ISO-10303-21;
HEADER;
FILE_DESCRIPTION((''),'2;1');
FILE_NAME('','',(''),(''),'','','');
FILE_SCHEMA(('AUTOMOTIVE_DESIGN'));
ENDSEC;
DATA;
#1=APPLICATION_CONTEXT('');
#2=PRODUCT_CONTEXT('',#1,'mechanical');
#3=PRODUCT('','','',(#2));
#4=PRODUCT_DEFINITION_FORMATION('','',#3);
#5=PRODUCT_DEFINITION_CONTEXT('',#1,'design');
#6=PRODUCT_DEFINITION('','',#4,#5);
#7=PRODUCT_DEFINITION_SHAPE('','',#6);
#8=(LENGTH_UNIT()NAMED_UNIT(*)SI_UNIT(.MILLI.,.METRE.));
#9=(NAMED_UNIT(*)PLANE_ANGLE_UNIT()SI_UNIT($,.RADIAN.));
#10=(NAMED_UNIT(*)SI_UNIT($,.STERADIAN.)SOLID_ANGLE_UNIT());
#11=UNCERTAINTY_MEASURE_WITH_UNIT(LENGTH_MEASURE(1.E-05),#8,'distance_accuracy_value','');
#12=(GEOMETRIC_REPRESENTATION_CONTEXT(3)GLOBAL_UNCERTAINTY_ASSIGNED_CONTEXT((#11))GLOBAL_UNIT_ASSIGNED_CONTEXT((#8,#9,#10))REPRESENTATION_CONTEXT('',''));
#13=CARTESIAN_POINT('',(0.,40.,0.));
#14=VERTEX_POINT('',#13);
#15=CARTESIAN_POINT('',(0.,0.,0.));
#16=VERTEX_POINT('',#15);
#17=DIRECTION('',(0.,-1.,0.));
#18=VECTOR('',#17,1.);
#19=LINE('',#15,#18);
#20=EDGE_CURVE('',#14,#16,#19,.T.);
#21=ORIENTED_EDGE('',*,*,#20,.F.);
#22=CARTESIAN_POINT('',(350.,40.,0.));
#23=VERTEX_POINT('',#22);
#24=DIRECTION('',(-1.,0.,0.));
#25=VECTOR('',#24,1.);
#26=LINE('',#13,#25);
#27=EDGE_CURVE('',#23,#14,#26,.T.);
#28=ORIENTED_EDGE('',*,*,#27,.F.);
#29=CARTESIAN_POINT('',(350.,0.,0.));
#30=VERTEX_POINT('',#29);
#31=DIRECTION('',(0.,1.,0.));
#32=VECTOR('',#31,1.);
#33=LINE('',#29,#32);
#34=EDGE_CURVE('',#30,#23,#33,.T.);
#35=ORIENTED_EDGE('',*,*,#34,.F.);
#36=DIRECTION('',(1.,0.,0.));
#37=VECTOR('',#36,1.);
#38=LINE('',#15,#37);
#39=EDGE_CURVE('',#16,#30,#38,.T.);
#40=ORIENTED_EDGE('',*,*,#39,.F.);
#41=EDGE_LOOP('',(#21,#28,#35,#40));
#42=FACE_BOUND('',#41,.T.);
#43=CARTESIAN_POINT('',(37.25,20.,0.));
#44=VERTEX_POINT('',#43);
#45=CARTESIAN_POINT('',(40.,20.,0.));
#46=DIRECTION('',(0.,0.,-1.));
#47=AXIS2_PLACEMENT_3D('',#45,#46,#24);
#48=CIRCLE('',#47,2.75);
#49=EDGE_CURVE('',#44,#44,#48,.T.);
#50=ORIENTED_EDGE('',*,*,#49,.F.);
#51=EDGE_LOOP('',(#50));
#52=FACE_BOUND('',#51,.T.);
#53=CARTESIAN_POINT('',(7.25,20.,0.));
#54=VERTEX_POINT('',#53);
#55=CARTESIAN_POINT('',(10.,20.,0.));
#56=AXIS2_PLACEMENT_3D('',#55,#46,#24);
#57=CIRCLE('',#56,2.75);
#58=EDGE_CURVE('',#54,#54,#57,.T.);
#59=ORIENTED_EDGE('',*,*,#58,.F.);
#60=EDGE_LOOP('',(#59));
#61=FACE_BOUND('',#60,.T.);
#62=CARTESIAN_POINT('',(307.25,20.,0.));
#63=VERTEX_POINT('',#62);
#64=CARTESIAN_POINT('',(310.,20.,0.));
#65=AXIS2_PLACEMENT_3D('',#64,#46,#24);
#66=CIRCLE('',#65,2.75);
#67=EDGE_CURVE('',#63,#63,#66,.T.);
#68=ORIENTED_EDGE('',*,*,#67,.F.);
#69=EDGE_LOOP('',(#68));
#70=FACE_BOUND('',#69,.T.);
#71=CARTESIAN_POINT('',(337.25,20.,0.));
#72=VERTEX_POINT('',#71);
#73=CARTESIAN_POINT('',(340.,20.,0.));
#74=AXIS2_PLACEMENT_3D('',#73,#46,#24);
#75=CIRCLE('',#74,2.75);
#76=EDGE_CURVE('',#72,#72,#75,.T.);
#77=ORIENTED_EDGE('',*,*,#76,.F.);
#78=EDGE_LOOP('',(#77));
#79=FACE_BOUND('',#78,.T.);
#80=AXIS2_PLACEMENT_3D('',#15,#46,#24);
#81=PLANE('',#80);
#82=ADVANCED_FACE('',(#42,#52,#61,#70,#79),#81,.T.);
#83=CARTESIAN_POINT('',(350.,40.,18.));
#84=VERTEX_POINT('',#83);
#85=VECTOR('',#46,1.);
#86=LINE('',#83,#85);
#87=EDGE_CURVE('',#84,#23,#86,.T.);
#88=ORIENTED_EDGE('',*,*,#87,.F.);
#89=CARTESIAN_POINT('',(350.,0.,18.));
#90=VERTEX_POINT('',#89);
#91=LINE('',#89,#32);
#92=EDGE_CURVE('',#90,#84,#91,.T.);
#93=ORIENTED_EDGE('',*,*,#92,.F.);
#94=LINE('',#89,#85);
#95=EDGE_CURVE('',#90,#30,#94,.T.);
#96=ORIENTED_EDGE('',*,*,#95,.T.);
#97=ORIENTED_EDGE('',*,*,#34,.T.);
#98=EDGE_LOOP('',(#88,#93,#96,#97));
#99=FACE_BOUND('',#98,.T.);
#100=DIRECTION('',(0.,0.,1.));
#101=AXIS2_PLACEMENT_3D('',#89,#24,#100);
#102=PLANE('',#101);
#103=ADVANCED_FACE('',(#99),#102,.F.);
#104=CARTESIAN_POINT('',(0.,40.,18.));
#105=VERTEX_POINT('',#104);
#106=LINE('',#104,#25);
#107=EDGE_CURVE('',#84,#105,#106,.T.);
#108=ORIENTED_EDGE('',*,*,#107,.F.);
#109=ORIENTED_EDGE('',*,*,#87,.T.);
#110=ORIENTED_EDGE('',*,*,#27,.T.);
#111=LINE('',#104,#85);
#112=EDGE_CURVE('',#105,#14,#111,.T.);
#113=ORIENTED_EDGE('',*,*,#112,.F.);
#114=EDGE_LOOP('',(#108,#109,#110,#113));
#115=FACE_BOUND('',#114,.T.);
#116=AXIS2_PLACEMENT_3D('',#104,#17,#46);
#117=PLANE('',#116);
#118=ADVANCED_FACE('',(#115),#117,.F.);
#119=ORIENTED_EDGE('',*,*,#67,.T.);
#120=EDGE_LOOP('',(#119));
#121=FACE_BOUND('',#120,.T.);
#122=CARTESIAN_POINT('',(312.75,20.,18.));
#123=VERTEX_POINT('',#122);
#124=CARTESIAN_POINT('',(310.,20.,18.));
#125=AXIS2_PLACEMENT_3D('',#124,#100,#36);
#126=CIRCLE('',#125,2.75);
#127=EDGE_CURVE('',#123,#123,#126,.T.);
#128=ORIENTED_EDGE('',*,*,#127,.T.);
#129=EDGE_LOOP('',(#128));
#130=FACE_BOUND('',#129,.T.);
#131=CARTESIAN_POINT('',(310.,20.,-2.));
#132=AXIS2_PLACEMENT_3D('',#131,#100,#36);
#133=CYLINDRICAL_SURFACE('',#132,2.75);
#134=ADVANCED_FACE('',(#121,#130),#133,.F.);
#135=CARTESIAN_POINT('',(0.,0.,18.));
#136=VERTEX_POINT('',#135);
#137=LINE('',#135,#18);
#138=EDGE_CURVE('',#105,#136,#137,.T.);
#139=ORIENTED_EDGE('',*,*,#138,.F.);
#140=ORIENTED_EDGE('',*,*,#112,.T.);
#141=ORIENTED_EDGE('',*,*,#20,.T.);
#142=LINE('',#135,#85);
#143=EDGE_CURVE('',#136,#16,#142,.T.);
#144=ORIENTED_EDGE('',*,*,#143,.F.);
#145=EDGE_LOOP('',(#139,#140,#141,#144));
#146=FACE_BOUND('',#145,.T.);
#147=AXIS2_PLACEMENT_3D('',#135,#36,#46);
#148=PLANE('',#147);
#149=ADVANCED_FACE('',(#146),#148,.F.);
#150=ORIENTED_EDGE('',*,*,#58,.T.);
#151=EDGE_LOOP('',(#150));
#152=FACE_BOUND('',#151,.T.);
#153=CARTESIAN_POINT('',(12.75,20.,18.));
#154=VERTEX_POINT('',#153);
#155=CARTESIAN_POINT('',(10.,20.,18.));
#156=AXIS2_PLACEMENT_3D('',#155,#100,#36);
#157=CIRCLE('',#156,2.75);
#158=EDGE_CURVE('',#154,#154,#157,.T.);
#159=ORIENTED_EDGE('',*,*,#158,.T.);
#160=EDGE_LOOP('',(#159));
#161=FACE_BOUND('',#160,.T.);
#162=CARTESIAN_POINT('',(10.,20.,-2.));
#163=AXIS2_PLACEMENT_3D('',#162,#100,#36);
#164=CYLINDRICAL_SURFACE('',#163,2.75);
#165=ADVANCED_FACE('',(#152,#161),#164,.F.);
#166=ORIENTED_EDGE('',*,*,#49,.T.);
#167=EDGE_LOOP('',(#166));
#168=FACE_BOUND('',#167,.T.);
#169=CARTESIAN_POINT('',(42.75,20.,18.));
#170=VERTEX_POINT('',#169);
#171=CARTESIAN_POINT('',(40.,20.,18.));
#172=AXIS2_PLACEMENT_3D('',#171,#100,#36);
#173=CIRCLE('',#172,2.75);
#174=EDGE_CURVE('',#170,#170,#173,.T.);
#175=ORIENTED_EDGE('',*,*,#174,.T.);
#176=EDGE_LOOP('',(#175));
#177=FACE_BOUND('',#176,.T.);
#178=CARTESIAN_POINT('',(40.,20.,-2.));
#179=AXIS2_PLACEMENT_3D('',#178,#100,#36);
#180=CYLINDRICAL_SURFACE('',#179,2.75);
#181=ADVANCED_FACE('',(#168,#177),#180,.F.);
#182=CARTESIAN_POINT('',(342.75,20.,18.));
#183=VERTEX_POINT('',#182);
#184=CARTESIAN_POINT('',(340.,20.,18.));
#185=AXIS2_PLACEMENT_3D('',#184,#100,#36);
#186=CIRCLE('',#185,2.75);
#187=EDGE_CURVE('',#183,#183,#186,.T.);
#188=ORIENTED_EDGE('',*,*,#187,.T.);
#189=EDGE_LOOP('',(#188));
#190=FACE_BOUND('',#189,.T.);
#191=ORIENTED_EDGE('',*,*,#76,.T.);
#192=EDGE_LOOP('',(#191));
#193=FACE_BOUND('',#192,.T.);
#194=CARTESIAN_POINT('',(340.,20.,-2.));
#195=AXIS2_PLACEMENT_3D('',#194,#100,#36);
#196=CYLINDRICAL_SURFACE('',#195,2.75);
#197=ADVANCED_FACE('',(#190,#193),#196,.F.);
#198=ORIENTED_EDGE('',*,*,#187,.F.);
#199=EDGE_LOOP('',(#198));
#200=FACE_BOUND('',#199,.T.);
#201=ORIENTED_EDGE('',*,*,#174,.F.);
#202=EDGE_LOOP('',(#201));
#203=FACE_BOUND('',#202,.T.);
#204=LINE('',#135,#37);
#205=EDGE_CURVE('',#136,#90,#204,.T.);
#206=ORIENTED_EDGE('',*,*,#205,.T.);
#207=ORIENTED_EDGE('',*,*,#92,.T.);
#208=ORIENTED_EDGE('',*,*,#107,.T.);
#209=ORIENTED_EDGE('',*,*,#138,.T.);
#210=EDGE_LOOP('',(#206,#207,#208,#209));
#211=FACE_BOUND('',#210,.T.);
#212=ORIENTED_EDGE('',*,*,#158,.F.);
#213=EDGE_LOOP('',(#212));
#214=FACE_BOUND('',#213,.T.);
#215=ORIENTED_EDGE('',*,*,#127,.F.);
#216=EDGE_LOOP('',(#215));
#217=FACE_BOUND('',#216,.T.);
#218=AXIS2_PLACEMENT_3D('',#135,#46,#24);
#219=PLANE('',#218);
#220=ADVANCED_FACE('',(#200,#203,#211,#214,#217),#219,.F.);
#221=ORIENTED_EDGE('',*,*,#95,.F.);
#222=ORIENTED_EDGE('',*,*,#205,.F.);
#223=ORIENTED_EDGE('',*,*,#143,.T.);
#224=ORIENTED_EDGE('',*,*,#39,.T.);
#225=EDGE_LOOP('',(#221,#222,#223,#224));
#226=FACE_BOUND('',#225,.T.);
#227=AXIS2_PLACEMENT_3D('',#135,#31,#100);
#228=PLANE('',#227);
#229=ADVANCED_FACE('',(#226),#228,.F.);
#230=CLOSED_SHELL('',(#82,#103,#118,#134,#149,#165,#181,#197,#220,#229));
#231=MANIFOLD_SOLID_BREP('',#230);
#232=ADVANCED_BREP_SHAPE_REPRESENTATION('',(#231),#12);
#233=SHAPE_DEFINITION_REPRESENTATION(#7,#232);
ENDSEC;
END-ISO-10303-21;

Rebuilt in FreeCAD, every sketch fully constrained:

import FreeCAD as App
import Part
import Sketcher

doc = App.newDocument("Part")
body = doc.addObject("PartDesign::Body", "Body")

# Sketch on XY plane
sketch1 = doc.addObject("Sketcher::SketchObject", "Sketch")
body.addObject(sketch1)
sketch1.AttachmentSupport = (doc.XY_Plane, [""])
sketch1.MapMode = "FlatFace"
sketch1.addGeometry([
    Part.LineSegment(App.Vector(0, 40, 0), App.Vector(0, 0, 0)),
    Part.LineSegment(App.Vector(0, 0, 0), App.Vector(350, 0, 0)),
    Part.LineSegment(App.Vector(350, 0, 0), App.Vector(350, 40, 0)),
    Part.LineSegment(App.Vector(350, 40, 0), App.Vector(0, 40, 0)),
], False)
sketch1.addConstraint([
    Sketcher.Constraint("Coincident", 0, 2, 1, 1),
    Sketcher.Constraint("Coincident", 1, 2, 2, 1),
    Sketcher.Constraint("Coincident", 2, 2, 3, 1),
    Sketcher.Constraint("Coincident", 3, 2, 0, 1),
    Sketcher.Constraint("Vertical", 0),
    Sketcher.Constraint("Horizontal", 1),
    Sketcher.Constraint("Vertical", 2),
    Sketcher.Constraint("Horizontal", 3),
    Sketcher.Constraint("Coincident", 0, 2, -1, 1),
    Sketcher.Constraint("DistanceX", 1, 1, 1, 2, 350.0),
    Sketcher.Constraint("DistanceY", 0, 2, 0, 1, 40.0),
])
pad1 = doc.addObject("PartDesign::Pad", "Pad")
body.addObject(pad1)
pad1.Profile = sketch1
pad1.Length = 18

# Sketch on XY plane
sketch2 = doc.addObject("Sketcher::SketchObject", "Sketch001")
body.addObject(sketch2)
sketch2.AttachmentSupport = (doc.XY_Plane, [""])
sketch2.MapMode = "FlatFace"
sketch2.AttachmentOffset = App.Placement(App.Vector(0, 0, 18), App.Rotation())
sketch2.addGeometry([
    Part.Circle(App.Vector(10, 20, 0), App.Vector(0, 0, 1), 2.8),
    Part.Circle(App.Vector(40, 20, 0), App.Vector(0, 0, 1), 2.8),
    Part.Circle(App.Vector(310, 20, 0), App.Vector(0, 0, 1), 2.8),
    Part.Circle(App.Vector(340, 20, 0), App.Vector(0, 0, 1), 2.8),
], False)
sketch2.addConstraint([
    Sketcher.Constraint("Equal", 0, 1),
    Sketcher.Constraint("Equal", 1, 2),
    Sketcher.Constraint("Equal", 2, 3),
    Sketcher.Constraint("Horizontal", 0, 3, 1, 3),
    Sketcher.Constraint("Horizontal", 1, 3, 2, 3),
    Sketcher.Constraint("Horizontal", 2, 3, 3, 3),
    Sketcher.Constraint("Diameter", 0, 5.5),
    Sketcher.Constraint("DistanceX", -1, 1, 0, 3, 10.0),
    Sketcher.Constraint("DistanceY", -1, 1, 0, 3, 20.0),
    Sketcher.Constraint("DistanceX", -1, 1, 1, 3, 40.0),
    Sketcher.Constraint("DistanceX", -1, 1, 2, 3, 310.0),
    Sketcher.Constraint("DistanceX", -1, 1, 3, 3, 340.0),
])
pocket1 = doc.addObject("PartDesign::Pocket", "Pocket")
body.addObject(pocket1)
pocket1.Profile = sketch2
pocket1.Length = 20

doc.recompute()
